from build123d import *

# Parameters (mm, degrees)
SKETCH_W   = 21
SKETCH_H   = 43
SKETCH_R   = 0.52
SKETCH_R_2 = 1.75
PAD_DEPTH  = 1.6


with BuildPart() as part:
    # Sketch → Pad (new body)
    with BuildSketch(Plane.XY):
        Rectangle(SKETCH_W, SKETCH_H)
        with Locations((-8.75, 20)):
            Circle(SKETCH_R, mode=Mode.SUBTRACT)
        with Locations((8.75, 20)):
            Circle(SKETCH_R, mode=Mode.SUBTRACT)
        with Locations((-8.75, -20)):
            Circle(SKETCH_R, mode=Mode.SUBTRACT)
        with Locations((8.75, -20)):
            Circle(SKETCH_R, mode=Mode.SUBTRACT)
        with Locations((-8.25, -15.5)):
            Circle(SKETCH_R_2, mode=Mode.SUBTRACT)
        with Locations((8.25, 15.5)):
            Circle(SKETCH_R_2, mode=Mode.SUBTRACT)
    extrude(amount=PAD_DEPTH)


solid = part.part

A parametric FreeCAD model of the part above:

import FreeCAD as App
import Part
import Sketcher
Q = App.Units.Quantity

doc = App.newDocument("Part")
params = doc.addObject("Spreadsheet::Sheet", "Params")
for row, (alias, value) in enumerate([
    ("sketch1_diameter", "3.5 mm"),
    ("sketch1_diameter2", "1.04 mm"),
    ("sketch1_width", "21 mm"),
    ("sketch1_height", "43 mm"),
    ("pad1_length", "1.6 mm"),
], start=1):
    params.set(f"A{row}", alias)
    params.set(f"B{row}", "=" + value)
    params.setAlias(f"B{row}", alias)

body = doc.addObject("PartDesign::Body", "Body")

# Sketch on XY plane
sketch1 = doc.addObject("Sketcher::SketchObject", "Sketch")
body.addObject(sketch1)
sketch1.AttachmentSupport = (doc.XY_Plane, [""])
sketch1.MapMode = "FlatFace"
sketch1.addGeometry(Part.LineSegment(App.Vector(-10.5, 21.5, 0), App.Vector(-10.5, -21.5, 0)), False)
sketch1.addGeometry(Part.LineSegment(App.Vector(-10.5, -21.5, 0), App.Vector(10.5, -21.5, 0)), False)
sketch1.addGeometry(Part.LineSegment(App.Vector(10.5, -21.5, 0), App.Vector(10.5, 21.5, 0)), False)
sketch1.addGeometry(Part.LineSegment(App.Vector(10.5, 21.5, 0), App.Vector(-10.5, 21.5, 0)), False)
sketch1.addGeometry(Part.Circle(App.Vector(-8.8, -20, 0), App.Vector(0, 0, 1), 0.5), False)
sketch1.addGeometry(Part.Circle(App.Vector(-8.2, -15.5, 0), App.Vector(0, 0, 1), 1.8), False)
sketch1.addGeometry(Part.Circle(App.Vector(8.8, -20, 0), App.Vector(0, 0, 1), 0.5), False)
sketch1.addGeometry(Part.Circle(App.Vector(-8.8, 20, 0), App.Vector(0, 0, 1), 0.5), False)
sketch1.addGeometry(Part.Circle(App.Vector(8.2, 15.5, 0), App.Vector(0, 0, 1), 1.8), False)
sketch1.addGeometry(Part.Circle(App.Vector(8.8, 20, 0), App.Vector(0, 0, 1), 0.5), False)
sketch1.addConstraint(Sketcher.Constraint("Coincident", 0, 2, 1, 1))
sketch1.addConstraint(Sketcher.Constraint("Coincident", 1, 2, 2, 1))
sketch1.addConstraint(Sketcher.Constraint("Coincident", 2, 2, 3, 1))
sketch1.addConstraint(Sketcher.Constraint("Coincident", 3, 2, 0, 1))
sketch1.addConstraint(Sketcher.Constraint("Vertical", 0))
sketch1.addConstraint(Sketcher.Constraint("Horizontal", 1))
sketch1.addConstraint(Sketcher.Constraint("Vertical", 2))
sketch1.addConstraint(Sketcher.Constraint("Horizontal", 3))
sketch1.addConstraint(Sketcher.Constraint("Equal", 4, 6))
sketch1.addConstraint(Sketcher.Constraint("Equal", 6, 7))
sketch1.addConstraint(Sketcher.Constraint("Equal", 5, 8))
sketch1.addConstraint(Sketcher.Constraint("Equal", 7, 9))
sketch1.addConstraint(Sketcher.Constraint("Symmetric", 6, 3, 7, 3, -1, 1))
sketch1.addConstraint(Sketcher.Constraint("Symmetric", 5, 3, 8, 3, -1, 1))
sketch1.addConstraint(Sketcher.Constraint("Symmetric", 4, 3, 9, 3, -1, 1))
sketch1.addConstraint(Sketcher.Constraint("Symmetric", 0, 2, 2, 2, -1, 1))
sketch1.addConstraint(Sketcher.Constraint("Symmetric", 4, 3, 6, 3, -2))
sketch1.addConstraint(Sketcher.Constraint("Diameter", 5, Q("3.5 mm")))
sketch1.addConstraint(Sketcher.Constraint("Diameter", 4, Q("1.04 mm")))
sketch1.addConstraint(Sketcher.Constraint("DistanceX", 1, 1, 1, 2, Q("21 mm")))
sketch1.addConstraint(Sketcher.Constraint("DistanceY", 0, 2, 0, 1, Q("43 mm")))
sketch1.addConstraint(Sketcher.Constraint("DistanceY", 4, 3, -1, 1, Q("20 mm")))
sketch1.addConstraint(Sketcher.Constraint("DistanceX", 5, 3, 6, 3, Q("17 mm")))
sketch1.addConstraint(Sketcher.Constraint("DistanceY", 5, 3, 8, 3, Q("31 mm")))
sketch1.addConstraint(Sketcher.Constraint("DistanceX", 4, 3, 5, 3, Q("0.5 mm")))
sketch1.setExpression("Constraints[17]", "Params.sketch1_diameter")
sketch1.setExpression("Constraints[18]", "Params.sketch1_diameter2")
sketch1.setExpression("Constraints[19]", "Params.sketch1_width")
sketch1.setExpression("Constraints[20]", "Params.sketch1_height")
pad1 = doc.addObject("PartDesign::Pad", "Pad")
body.addObject(pad1)
pad1.Profile = sketch1
pad1.setExpression("Length", "Params.pad1_length")

doc.recompute()
